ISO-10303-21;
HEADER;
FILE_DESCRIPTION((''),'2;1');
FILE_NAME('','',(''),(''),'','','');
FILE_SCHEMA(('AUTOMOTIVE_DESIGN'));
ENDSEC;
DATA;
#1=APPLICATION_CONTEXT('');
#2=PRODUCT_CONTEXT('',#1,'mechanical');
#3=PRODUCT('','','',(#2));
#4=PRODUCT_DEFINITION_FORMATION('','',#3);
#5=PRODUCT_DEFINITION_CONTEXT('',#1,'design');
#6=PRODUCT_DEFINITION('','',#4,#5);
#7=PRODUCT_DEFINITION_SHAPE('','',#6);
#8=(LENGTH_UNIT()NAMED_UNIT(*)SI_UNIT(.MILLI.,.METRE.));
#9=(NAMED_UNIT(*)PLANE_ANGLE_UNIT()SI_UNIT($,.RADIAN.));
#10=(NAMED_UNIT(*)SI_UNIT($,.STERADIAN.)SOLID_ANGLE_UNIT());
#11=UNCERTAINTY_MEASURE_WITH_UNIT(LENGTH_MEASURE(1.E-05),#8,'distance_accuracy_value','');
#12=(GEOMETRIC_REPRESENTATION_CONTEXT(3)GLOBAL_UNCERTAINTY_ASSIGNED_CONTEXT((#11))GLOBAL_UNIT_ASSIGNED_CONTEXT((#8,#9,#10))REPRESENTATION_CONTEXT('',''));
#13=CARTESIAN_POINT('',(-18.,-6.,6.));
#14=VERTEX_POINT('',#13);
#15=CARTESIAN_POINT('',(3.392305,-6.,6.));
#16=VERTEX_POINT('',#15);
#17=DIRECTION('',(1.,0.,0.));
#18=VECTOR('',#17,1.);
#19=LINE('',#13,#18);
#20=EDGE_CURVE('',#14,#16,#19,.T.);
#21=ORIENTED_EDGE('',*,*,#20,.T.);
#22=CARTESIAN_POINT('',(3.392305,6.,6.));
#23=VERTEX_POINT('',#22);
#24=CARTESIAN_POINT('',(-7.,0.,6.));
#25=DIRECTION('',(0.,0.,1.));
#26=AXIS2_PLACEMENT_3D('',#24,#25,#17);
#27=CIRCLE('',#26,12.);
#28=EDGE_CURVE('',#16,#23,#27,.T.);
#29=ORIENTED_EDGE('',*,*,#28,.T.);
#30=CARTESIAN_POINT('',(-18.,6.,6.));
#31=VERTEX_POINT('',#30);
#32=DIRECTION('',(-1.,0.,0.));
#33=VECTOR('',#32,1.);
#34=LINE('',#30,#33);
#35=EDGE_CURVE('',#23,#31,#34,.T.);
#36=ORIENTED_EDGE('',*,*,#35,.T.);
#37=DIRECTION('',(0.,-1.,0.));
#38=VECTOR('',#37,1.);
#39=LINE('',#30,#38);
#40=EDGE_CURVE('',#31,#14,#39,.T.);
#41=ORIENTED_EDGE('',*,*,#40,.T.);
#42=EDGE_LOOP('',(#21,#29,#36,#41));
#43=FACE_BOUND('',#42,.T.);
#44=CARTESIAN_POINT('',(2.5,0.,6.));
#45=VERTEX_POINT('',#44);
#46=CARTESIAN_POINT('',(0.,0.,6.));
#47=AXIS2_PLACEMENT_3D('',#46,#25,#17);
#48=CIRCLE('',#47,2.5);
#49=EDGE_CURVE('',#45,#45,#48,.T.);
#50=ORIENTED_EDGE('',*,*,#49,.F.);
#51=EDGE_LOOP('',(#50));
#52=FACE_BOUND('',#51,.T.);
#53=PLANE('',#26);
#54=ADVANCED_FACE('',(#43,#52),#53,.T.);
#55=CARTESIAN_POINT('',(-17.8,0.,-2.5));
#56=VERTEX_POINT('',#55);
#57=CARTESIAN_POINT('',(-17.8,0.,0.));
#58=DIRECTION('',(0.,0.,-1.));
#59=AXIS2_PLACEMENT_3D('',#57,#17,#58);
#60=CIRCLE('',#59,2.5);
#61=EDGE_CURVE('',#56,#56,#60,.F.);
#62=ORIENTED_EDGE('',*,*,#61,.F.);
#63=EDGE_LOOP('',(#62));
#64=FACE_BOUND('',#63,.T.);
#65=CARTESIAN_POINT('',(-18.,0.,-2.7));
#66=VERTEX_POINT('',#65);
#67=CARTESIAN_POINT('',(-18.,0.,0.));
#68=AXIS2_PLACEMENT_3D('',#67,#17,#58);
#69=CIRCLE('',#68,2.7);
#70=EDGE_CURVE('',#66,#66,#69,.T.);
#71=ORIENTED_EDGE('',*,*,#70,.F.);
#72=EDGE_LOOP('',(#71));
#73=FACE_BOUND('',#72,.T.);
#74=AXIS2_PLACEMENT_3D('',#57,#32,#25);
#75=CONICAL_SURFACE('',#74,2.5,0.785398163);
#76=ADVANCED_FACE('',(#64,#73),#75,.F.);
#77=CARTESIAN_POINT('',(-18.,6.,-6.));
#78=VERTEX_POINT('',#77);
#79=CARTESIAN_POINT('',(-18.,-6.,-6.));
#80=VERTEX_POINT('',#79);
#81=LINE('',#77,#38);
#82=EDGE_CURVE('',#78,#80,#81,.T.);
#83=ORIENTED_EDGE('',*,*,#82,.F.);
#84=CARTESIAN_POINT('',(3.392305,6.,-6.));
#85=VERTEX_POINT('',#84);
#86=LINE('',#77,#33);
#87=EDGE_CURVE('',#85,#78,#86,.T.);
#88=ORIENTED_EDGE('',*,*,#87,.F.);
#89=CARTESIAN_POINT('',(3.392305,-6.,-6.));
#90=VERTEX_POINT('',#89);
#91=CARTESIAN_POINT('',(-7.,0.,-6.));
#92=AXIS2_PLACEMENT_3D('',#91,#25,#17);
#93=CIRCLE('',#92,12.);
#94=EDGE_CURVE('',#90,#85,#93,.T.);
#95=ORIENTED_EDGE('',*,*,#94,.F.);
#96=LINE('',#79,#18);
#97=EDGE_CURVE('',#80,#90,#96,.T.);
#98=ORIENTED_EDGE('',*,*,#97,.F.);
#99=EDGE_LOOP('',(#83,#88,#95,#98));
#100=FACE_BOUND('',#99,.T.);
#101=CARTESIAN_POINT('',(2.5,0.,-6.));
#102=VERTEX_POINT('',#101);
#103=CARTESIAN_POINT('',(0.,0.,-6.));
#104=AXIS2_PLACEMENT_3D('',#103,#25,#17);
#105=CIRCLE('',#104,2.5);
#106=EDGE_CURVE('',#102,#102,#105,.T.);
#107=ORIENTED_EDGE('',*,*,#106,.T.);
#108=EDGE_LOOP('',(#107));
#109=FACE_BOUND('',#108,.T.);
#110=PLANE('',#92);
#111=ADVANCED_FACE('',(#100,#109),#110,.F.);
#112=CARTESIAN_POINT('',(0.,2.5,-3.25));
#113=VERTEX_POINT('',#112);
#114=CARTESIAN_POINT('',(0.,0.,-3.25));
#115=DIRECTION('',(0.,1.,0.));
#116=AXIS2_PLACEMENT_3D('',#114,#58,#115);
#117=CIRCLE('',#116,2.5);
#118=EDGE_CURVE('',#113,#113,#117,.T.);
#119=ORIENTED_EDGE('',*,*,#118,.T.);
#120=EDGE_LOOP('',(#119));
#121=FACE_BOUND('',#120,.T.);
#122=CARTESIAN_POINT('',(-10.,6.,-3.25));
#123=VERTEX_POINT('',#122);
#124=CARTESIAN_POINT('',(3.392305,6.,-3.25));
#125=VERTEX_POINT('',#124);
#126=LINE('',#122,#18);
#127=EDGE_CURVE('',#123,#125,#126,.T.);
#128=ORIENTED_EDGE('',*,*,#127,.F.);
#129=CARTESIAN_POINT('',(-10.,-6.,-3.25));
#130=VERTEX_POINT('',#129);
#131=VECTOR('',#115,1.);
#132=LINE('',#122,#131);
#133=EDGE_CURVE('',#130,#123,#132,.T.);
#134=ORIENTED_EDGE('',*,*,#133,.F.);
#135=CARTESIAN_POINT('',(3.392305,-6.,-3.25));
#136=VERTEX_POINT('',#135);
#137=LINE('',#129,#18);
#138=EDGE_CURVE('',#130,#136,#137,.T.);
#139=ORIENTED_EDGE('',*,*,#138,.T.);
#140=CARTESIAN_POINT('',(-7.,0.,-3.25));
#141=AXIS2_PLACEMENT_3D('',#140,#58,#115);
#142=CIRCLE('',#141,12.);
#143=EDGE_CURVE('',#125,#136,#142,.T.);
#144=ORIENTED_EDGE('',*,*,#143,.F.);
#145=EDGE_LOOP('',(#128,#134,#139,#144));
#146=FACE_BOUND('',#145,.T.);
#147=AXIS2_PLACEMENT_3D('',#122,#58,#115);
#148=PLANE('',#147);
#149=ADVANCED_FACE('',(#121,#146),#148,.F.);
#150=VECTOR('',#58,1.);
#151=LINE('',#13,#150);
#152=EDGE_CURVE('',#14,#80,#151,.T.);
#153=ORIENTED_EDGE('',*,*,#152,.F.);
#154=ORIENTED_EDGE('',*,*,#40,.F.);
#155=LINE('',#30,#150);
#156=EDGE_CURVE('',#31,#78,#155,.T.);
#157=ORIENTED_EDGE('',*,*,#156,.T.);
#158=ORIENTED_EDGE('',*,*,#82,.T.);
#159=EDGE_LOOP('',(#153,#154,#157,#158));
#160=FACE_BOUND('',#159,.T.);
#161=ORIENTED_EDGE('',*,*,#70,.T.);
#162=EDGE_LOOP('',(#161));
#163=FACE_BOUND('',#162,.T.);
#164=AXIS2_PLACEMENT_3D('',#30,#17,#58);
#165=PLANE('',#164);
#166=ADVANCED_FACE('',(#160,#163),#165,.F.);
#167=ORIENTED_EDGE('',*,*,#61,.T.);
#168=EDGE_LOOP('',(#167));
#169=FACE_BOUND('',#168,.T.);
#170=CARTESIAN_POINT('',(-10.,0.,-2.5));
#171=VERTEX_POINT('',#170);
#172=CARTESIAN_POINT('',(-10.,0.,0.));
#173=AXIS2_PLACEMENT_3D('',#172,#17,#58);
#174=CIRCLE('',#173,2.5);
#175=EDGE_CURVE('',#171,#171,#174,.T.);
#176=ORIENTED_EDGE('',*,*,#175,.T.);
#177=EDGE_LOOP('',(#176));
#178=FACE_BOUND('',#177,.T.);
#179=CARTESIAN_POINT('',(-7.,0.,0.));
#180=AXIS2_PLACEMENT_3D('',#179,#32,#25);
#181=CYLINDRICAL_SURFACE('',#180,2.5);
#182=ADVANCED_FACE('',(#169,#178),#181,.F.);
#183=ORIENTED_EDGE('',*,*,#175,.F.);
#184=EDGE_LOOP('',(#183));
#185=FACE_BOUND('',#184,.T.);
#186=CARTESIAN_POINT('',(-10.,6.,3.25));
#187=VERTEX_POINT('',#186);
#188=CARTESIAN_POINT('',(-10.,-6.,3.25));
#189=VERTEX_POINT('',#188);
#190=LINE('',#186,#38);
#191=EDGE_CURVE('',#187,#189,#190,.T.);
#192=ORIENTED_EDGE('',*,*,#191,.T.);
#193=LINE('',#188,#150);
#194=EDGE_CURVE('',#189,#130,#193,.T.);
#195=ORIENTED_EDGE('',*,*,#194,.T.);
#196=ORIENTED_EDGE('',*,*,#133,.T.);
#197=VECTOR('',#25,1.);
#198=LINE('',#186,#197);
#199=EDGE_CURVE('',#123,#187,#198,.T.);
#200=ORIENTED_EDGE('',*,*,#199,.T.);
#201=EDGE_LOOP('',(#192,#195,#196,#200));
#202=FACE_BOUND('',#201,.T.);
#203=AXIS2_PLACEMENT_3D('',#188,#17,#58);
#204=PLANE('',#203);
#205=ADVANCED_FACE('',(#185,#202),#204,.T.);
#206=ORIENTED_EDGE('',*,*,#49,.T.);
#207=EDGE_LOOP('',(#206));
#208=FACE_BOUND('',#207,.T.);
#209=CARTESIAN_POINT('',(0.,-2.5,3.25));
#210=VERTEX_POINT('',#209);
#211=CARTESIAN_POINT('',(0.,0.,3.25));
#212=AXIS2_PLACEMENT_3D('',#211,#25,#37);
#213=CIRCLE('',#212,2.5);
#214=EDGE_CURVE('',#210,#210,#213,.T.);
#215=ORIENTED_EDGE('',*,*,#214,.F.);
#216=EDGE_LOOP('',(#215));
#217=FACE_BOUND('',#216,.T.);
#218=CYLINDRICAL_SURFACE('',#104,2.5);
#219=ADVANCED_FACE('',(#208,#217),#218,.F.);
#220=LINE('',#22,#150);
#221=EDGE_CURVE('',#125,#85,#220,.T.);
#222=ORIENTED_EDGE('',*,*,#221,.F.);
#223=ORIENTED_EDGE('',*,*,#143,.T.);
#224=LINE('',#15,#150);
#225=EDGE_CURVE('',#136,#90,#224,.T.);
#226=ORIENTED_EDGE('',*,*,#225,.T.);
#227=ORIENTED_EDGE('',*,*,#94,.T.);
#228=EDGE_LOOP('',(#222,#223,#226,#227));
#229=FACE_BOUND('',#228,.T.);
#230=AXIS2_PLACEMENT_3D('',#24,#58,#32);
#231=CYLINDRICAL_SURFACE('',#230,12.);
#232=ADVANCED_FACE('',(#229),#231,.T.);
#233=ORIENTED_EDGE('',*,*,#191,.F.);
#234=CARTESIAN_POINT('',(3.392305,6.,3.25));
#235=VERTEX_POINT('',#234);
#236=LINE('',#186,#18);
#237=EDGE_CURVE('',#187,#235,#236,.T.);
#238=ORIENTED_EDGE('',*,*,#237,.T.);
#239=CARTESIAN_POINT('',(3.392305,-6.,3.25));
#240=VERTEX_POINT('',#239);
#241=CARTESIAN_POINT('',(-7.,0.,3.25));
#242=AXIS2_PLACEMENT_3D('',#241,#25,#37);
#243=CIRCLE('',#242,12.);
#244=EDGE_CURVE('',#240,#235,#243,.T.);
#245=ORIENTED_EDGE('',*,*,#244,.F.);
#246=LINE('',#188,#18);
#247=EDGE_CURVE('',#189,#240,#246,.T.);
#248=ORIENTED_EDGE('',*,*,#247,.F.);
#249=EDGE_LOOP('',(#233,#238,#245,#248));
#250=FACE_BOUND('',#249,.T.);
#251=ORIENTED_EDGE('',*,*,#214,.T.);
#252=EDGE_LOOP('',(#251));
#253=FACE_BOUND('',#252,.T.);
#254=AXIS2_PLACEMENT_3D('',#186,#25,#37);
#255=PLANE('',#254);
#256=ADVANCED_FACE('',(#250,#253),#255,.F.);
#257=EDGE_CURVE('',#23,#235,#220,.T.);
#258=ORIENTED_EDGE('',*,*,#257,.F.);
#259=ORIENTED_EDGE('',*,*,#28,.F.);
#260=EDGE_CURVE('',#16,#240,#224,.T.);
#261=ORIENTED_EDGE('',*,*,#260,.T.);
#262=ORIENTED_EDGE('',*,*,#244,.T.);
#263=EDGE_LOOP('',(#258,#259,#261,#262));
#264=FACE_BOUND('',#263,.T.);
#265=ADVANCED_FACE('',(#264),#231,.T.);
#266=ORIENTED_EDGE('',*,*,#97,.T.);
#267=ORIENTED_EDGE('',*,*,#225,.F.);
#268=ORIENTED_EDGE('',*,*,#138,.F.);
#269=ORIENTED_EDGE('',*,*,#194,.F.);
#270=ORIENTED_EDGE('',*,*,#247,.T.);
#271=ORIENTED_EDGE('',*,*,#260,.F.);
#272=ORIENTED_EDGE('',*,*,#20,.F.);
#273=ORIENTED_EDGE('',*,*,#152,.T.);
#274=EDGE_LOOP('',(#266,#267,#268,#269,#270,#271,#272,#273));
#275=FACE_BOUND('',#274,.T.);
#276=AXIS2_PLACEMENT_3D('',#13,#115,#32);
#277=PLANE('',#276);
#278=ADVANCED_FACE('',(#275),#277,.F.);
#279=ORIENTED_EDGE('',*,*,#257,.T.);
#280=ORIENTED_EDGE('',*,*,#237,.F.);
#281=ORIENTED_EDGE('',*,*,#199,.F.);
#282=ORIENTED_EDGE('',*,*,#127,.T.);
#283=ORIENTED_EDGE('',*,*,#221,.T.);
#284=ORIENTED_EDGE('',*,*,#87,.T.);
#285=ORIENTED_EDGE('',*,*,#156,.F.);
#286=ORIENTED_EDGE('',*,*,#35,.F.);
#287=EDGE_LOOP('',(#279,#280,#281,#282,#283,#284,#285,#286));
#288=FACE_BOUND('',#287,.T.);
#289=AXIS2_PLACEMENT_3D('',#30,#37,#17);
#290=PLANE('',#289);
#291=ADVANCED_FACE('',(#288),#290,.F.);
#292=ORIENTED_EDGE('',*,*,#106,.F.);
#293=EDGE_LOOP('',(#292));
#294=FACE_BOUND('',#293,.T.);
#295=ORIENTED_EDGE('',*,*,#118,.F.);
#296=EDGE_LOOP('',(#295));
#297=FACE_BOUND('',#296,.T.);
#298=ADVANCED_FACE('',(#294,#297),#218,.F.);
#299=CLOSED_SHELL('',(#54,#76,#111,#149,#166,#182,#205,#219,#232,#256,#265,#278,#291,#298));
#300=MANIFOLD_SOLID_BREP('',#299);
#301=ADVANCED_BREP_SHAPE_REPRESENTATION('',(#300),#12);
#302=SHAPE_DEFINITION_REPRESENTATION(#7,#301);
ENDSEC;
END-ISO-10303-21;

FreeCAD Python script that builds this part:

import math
import FreeCAD as App
import Part
import Sketcher

V = App.Vector


def edges_at(feature, points):
    """Names of the edges that pass closest to the given points."""
    edges = feature.Shape.Edges
    near = lambda p: min(range(len(edges)), key=lambda i: edges[i].distToShape(Part.Vertex(*p))[0])
    return sorted({f"Edge{near(p) + 1}" for p in points})

doc = App.newDocument("Part")
body = doc.addObject("PartDesign::Body", "Body")

# Sketch on XY plane
sketch1 = body.newObject("Sketcher::SketchObject", "Sketch")
sketch1.AttachmentSupport = (doc.getObject("XY_Plane"), [""])
sketch1.MapMode = "FlatFace"
sketch1.addGeometry(Part.LineSegment(V(3.392305, 6, 0), V(-18, 6, 0)), False)
sketch1.addGeometry(Part.LineSegment(V(-18, 6, 0), V(-18, -6, 0)), False)
sketch1.addGeometry(Part.LineSegment(V(-18, -6, 0), V(3.392305, -6, 0)), False)
sketch1.addGeometry(Part.ArcOfCircle(Part.Circle(V(-7, 0, 0), V(0, 0, 1), 12), math.radians(-30), math.radians(30)), False)
sketch1.addConstraint(Sketcher.Constraint("Coincident", 0, 2, 1, 1))
sketch1.addConstraint(Sketcher.Constraint("Coincident", 1, 2, 2, 1))
sketch1.addConstraint(Sketcher.Constraint("Coincident", 2, 2, 3, 1))
sketch1.addConstraint(Sketcher.Constraint("Coincident", 3, 2, 0, 1))
sketch1.addConstraint(Sketcher.Constraint("Horizontal", 0))
sketch1.addConstraint(Sketcher.Constraint("Vertical", 1))
sketch1.addConstraint(Sketcher.Constraint("Horizontal", 2))
sketch1.addConstraint(Sketcher.Constraint("Symmetric", 2, 2, 3, 2, -1))
sketch1.addConstraint(Sketcher.Constraint("Radius", 3, 12.0))
sketch1.addConstraint(Sketcher.Constraint("DistanceY", 1, 2, 1, 1, 12.0))
sketch1.addConstraint(Sketcher.Constraint("DistanceX", 3, 3, -1, 1, 7.0))
sketch1.addConstraint(Sketcher.Constraint("DistanceX", 0, 2, -1, 1, 18.0))
pad1 = body.newObject("PartDesign::Pad", "Pad")
pad1.Profile = sketch1
pad1.Length = 12
pad1.Midplane = True

# Sketch on YZ plane
sketch2 = body.newObject("Sketcher::SketchObject", "Sketch001")
sketch2.AttachmentSupport = (doc.getObject("YZ_Plane"), [""])
sketch2.MapMode = "FlatFace"
sketch2.addGeometry(Part.LineSegment(V(6, 3.25, 0), V(-6, 3.25, 0)), False)
sketch2.addGeometry(Part.LineSegment(V(-6, 3.25, 0), V(-6, -3.25, 0)), False)
sketch2.addGeometry(Part.LineSegment(V(-6, -3.25, 0), V(6, -3.25, 0)), False)
sketch2.addGeometry(Part.LineSegment(V(6, -3.25, 0), V(6, 3.25, 0)), False)
sketch2.addConstraint(Sketcher.Constraint("Coincident", 0, 2, 1, 1))
sketch2.addConstraint(Sketcher.Constraint("Coincident", 1, 2, 2, 1))
sketch2.addConstraint(Sketcher.Constraint("Coincident", 2, 2, 3, 1))
sketch2.addConstraint(Sketcher.Constraint("Coincident", 3, 2, 0, 1))
sketch2.addConstraint(Sketcher.Constraint("Horizontal", 0))
sketch2.addConstraint(Sketcher.Constraint("Vertical", 1))
sketch2.addConstraint(Sketcher.Constraint("Horizontal", 2))
sketch2.addConstraint(Sketcher.Constraint("Vertical", 3))
sketch2.addConstraint(Sketcher.Constraint("Symmetric", 0, 2, 2, 2, -1, 1))
sketch2.addConstraint(Sketcher.Constraint("DistanceX", 0, 2, 0, 1, 12.0))
sketch2.addConstraint(Sketcher.Constraint("DistanceY", 1, 2, 1, 1, 6.5))
pocket1 = body.newObject("PartDesign::Pocket", "Pocket")
pocket1.Profile = sketch2
pocket1.Type = "TwoLengths"
pocket1.Length = 6
pocket1.Length2 = 10
pocket1.Reversed = True

# Sketch on YZ plane
sketch3 = body.newObject("Sketcher::SketchObject", "Sketch002")
sketch3.AttachmentSupport = (doc.getObject("YZ_Plane"), [""])
sketch3.MapMode = "FlatFace"
sketch3.AttachmentOffset = App.Placement(V(0, 0, -18), App.Rotation())
sketch3.addGeometry(Part.Circle(V(0, 0, 0), V(0, 0, 1), 2.5), False)
sketch3.addConstraint(Sketcher.Constraint("Coincident", 0, 3, -1, 1))
sketch3.addConstraint(Sketcher.Constraint("Diameter", 0, 5.0))
pocket2 = body.newObject("PartDesign::Pocket", "Pocket001")
pocket2.Profile = sketch3
pocket2.Length = 11
pocket2.Reversed = True
doc.recompute()

chamfer = body.newObject("PartDesign::Chamfer", "Chamfer")
chamfer.Base = (pocket2, edges_at(pocket2, [(-18, 0, -2.5)]))
chamfer.Size = 0.2

# Sketch on XY plane
sketch4 = body.newObject("Sketcher::SketchObject", "Sketch003")
sketch4.AttachmentSupport = (doc.getObject("XY_Plane"), [""])
sketch4.MapMode = "FlatFace"
sketch4.addGeometry(Part.Circle(V(0, 0, 0), V(0, 0, 1), 2.5), False)
sketch4.addConstraint(Sketcher.Constraint("Coincident", 0, 3, -1, 1))
sketch4.addConstraint(Sketcher.Constraint("Diameter", 0, 5.0))
pocket3 = body.newObject("PartDesign::Pocket", "Pocket002")
pocket3.Profile = sketch4
pocket3.Type = "ThroughAll"
pocket3.Midplane = True

doc.recompute()
